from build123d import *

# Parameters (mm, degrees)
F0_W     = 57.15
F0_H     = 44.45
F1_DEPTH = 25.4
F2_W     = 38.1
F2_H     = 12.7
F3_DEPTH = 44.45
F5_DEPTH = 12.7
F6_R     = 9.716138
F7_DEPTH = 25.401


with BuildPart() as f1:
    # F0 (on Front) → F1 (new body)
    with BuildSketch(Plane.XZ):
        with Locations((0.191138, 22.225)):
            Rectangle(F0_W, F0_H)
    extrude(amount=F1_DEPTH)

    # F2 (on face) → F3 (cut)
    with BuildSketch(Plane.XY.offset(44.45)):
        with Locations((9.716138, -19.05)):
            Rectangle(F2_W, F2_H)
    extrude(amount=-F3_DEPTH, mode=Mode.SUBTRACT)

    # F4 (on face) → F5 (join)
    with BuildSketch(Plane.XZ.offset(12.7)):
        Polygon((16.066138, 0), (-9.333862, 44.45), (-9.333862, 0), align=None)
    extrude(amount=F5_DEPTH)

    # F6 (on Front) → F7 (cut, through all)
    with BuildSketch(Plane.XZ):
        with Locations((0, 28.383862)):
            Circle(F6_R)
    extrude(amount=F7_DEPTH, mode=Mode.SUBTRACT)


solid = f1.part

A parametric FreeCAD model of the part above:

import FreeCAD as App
import Part
import Sketcher
from FreeCAD import Vector
Q = App.Units.Quantity

doc = App.newDocument("Part")
body = doc.addObject("PartDesign::Body", "Body")

# Sketch on XZ plane
sketch1 = body.newObject("Sketcher::SketchObject", "Sketch")
sketch1.AttachmentSupport = (doc.getObject("XZ_Plane"), [""])
sketch1.MapMode = "FlatFace"
sketch1.addGeometry([
    Part.LineSegment(Vector(-28, 44, 0), Vector(-28, 0, 0)),
    Part.LineSegment(Vector(-28, 0, 0), Vector(29, 0, 0)),
    Part.LineSegment(Vector(29, 0, 0), Vector(29, 44, 0)),
    Part.LineSegment(Vector(29, 44, 0), Vector(-28, 44, 0)),
], False)
sketch1.addConstraint([
    Sketcher.Constraint("Coincident", 0, 2, 1, 1),
    Sketcher.Constraint("Coincident", 1, 2, 2, 1),
    Sketcher.Constraint("Coincident", 2, 2, 3, 1),
    Sketcher.Constraint("Coincident", 3, 2, 0, 1),
    Sketcher.Constraint("Vertical", 0),
    Sketcher.Constraint("Horizontal", 1),
    Sketcher.Constraint("Vertical", 2),
    Sketcher.Constraint("Horizontal", 3),
    Sketcher.Constraint("PointOnObject", 0, 2, -1),
    Sketcher.Constraint("DistanceX", 1, 1, 1, 2, Q("2.25 in")),
    Sketcher.Constraint("DistanceY", 0, 2, 0, 1, Q("1.75 in")),
    Sketcher.Constraint("DistanceX", -1, 1, 1, 2, Q("28.766138 mm")),
])
pad1 = body.newObject("PartDesign::Pad", "Pad")
pad1.Profile = sketch1
pad1.Length = Q("1 in")

# Sketch on XY plane
sketch2 = body.newObject("Sketcher::SketchObject", "Sketch001")
sketch2.AttachmentSupport = (doc.getObject("XY_Plane"), [""])
sketch2.MapMode = "FlatFace"
sketch2.AttachmentOffset = App.Placement(Vector(0, 0, 1.75 * 25.4), App.Rotation())
sketch2.addGeometry([
    Part.LineSegment(Vector(-9, -13, 0), Vector(-9, -25, 0)),
    Part.LineSegment(Vector(-9, -25, 0), Vector(29, -25, 0)),
    Part.LineSegment(Vector(29, -25, 0), Vector(29, -13, 0)),
    Part.LineSegment(Vector(29, -13, 0), Vector(-9, -13, 0)),
], False)
sketch2.addConstraint([
    Sketcher.Constraint("Coincident", 0, 2, 1, 1),
    Sketcher.Constraint("Coincident", 1, 2, 2, 1),
    Sketcher.Constraint("Coincident", 2, 2, 3, 1),
    Sketcher.Constraint("Coincident", 3, 2, 0, 1),
    Sketcher.Constraint("Vertical", 0),
    Sketcher.Constraint("Horizontal", 1),
    Sketcher.Constraint("Vertical", 2),
    Sketcher.Constraint("Horizontal", 3),
    Sketcher.Constraint("DistanceX", 1, 1, 1, 2, Q("1.5 in")),
    Sketcher.Constraint("DistanceY", 0, 2, 0, 1, Q("0.5 in")),
    Sketcher.Constraint("DistanceY", 0, 2, -1, 1, Q("1 in")),
    Sketcher.Constraint("DistanceX", -1, 1, 1, 2, Q("28.766138 mm")),
])
pocket1 = body.newObject("PartDesign::Pocket", "Pocket")
pocket1.Profile = sketch2
pocket1.Length = Q("1.75 in")

# Sketch on XZ plane
sketch3 = body.newObject("Sketcher::SketchObject", "Sketch002")
sketch3.AttachmentSupport = (doc.getObject("XZ_Plane"), [""])
sketch3.MapMode = "FlatFace"
sketch3.AttachmentOffset = App.Placement(Vector(0, 0, 0.5 * 25.4), App.Rotation())
sketch3.addGeometry([
    Part.LineSegment(Vector(16, 0, 0), Vector(-9, 44, 0)),
    Part.LineSegment(Vector(-9, 44, 0), Vector(-9, 0, 0)),
    Part.LineSegment(Vector(-9, 0, 0), Vector(16, 0, 0)),
], False)
sketch3.addConstraint([
    Sketcher.Constraint("Coincident", 0, 2, 1, 1),
    Sketcher.Constraint("Coincident", 1, 2, 2, 1),
    Sketcher.Constraint("Coincident", 2, 2, 0, 1),
    Sketcher.Constraint("Vertical", 1),
    Sketcher.Constraint("Horizontal", 2),
    Sketcher.Constraint("PointOnObject", 1, 2, -1),
    Sketcher.Constraint("DistanceX", 2, 1, 2, 2, Q("1 in")),
    Sketcher.Constraint("DistanceY", 1, 2, 1, 1, Q("1.75 in")),
    Sketcher.Constraint("DistanceX", 0, 2, -1, 1, Q("9.333862 mm")),
])
pad2 = body.newObject("PartDesign::Pad", "Pad001")
pad2.Profile = sketch3
pad2.Length = Q("0.5 in")

# Sketch on XZ plane
sketch4 = body.newObject("Sketcher::SketchObject", "Sketch003")
sketch4.AttachmentSupport = (doc.getObject("XZ_Plane"), [""])
sketch4.MapMode = "FlatFace"
sketch4.addGeometry(Part.Circle(Vector(0, 28, 0), Vector(0, 0, 1), 10), False)
sketch4.addConstraint([
    Sketcher.Constraint("PointOnObject", 0, 3, -2),
    Sketcher.Constraint("Diameter", 0, Q("19.432276 mm")),
    Sketcher.Constraint("DistanceY", -1, 1, 0, 3, Q("28.383862 mm")),
])
pocket2 = body.newObject("PartDesign::Pocket", "Pocket001")
pocket2.Profile = sketch4
pocket2.Type = "ThroughAll"
pocket2.Reversed = True

doc.recompute()
